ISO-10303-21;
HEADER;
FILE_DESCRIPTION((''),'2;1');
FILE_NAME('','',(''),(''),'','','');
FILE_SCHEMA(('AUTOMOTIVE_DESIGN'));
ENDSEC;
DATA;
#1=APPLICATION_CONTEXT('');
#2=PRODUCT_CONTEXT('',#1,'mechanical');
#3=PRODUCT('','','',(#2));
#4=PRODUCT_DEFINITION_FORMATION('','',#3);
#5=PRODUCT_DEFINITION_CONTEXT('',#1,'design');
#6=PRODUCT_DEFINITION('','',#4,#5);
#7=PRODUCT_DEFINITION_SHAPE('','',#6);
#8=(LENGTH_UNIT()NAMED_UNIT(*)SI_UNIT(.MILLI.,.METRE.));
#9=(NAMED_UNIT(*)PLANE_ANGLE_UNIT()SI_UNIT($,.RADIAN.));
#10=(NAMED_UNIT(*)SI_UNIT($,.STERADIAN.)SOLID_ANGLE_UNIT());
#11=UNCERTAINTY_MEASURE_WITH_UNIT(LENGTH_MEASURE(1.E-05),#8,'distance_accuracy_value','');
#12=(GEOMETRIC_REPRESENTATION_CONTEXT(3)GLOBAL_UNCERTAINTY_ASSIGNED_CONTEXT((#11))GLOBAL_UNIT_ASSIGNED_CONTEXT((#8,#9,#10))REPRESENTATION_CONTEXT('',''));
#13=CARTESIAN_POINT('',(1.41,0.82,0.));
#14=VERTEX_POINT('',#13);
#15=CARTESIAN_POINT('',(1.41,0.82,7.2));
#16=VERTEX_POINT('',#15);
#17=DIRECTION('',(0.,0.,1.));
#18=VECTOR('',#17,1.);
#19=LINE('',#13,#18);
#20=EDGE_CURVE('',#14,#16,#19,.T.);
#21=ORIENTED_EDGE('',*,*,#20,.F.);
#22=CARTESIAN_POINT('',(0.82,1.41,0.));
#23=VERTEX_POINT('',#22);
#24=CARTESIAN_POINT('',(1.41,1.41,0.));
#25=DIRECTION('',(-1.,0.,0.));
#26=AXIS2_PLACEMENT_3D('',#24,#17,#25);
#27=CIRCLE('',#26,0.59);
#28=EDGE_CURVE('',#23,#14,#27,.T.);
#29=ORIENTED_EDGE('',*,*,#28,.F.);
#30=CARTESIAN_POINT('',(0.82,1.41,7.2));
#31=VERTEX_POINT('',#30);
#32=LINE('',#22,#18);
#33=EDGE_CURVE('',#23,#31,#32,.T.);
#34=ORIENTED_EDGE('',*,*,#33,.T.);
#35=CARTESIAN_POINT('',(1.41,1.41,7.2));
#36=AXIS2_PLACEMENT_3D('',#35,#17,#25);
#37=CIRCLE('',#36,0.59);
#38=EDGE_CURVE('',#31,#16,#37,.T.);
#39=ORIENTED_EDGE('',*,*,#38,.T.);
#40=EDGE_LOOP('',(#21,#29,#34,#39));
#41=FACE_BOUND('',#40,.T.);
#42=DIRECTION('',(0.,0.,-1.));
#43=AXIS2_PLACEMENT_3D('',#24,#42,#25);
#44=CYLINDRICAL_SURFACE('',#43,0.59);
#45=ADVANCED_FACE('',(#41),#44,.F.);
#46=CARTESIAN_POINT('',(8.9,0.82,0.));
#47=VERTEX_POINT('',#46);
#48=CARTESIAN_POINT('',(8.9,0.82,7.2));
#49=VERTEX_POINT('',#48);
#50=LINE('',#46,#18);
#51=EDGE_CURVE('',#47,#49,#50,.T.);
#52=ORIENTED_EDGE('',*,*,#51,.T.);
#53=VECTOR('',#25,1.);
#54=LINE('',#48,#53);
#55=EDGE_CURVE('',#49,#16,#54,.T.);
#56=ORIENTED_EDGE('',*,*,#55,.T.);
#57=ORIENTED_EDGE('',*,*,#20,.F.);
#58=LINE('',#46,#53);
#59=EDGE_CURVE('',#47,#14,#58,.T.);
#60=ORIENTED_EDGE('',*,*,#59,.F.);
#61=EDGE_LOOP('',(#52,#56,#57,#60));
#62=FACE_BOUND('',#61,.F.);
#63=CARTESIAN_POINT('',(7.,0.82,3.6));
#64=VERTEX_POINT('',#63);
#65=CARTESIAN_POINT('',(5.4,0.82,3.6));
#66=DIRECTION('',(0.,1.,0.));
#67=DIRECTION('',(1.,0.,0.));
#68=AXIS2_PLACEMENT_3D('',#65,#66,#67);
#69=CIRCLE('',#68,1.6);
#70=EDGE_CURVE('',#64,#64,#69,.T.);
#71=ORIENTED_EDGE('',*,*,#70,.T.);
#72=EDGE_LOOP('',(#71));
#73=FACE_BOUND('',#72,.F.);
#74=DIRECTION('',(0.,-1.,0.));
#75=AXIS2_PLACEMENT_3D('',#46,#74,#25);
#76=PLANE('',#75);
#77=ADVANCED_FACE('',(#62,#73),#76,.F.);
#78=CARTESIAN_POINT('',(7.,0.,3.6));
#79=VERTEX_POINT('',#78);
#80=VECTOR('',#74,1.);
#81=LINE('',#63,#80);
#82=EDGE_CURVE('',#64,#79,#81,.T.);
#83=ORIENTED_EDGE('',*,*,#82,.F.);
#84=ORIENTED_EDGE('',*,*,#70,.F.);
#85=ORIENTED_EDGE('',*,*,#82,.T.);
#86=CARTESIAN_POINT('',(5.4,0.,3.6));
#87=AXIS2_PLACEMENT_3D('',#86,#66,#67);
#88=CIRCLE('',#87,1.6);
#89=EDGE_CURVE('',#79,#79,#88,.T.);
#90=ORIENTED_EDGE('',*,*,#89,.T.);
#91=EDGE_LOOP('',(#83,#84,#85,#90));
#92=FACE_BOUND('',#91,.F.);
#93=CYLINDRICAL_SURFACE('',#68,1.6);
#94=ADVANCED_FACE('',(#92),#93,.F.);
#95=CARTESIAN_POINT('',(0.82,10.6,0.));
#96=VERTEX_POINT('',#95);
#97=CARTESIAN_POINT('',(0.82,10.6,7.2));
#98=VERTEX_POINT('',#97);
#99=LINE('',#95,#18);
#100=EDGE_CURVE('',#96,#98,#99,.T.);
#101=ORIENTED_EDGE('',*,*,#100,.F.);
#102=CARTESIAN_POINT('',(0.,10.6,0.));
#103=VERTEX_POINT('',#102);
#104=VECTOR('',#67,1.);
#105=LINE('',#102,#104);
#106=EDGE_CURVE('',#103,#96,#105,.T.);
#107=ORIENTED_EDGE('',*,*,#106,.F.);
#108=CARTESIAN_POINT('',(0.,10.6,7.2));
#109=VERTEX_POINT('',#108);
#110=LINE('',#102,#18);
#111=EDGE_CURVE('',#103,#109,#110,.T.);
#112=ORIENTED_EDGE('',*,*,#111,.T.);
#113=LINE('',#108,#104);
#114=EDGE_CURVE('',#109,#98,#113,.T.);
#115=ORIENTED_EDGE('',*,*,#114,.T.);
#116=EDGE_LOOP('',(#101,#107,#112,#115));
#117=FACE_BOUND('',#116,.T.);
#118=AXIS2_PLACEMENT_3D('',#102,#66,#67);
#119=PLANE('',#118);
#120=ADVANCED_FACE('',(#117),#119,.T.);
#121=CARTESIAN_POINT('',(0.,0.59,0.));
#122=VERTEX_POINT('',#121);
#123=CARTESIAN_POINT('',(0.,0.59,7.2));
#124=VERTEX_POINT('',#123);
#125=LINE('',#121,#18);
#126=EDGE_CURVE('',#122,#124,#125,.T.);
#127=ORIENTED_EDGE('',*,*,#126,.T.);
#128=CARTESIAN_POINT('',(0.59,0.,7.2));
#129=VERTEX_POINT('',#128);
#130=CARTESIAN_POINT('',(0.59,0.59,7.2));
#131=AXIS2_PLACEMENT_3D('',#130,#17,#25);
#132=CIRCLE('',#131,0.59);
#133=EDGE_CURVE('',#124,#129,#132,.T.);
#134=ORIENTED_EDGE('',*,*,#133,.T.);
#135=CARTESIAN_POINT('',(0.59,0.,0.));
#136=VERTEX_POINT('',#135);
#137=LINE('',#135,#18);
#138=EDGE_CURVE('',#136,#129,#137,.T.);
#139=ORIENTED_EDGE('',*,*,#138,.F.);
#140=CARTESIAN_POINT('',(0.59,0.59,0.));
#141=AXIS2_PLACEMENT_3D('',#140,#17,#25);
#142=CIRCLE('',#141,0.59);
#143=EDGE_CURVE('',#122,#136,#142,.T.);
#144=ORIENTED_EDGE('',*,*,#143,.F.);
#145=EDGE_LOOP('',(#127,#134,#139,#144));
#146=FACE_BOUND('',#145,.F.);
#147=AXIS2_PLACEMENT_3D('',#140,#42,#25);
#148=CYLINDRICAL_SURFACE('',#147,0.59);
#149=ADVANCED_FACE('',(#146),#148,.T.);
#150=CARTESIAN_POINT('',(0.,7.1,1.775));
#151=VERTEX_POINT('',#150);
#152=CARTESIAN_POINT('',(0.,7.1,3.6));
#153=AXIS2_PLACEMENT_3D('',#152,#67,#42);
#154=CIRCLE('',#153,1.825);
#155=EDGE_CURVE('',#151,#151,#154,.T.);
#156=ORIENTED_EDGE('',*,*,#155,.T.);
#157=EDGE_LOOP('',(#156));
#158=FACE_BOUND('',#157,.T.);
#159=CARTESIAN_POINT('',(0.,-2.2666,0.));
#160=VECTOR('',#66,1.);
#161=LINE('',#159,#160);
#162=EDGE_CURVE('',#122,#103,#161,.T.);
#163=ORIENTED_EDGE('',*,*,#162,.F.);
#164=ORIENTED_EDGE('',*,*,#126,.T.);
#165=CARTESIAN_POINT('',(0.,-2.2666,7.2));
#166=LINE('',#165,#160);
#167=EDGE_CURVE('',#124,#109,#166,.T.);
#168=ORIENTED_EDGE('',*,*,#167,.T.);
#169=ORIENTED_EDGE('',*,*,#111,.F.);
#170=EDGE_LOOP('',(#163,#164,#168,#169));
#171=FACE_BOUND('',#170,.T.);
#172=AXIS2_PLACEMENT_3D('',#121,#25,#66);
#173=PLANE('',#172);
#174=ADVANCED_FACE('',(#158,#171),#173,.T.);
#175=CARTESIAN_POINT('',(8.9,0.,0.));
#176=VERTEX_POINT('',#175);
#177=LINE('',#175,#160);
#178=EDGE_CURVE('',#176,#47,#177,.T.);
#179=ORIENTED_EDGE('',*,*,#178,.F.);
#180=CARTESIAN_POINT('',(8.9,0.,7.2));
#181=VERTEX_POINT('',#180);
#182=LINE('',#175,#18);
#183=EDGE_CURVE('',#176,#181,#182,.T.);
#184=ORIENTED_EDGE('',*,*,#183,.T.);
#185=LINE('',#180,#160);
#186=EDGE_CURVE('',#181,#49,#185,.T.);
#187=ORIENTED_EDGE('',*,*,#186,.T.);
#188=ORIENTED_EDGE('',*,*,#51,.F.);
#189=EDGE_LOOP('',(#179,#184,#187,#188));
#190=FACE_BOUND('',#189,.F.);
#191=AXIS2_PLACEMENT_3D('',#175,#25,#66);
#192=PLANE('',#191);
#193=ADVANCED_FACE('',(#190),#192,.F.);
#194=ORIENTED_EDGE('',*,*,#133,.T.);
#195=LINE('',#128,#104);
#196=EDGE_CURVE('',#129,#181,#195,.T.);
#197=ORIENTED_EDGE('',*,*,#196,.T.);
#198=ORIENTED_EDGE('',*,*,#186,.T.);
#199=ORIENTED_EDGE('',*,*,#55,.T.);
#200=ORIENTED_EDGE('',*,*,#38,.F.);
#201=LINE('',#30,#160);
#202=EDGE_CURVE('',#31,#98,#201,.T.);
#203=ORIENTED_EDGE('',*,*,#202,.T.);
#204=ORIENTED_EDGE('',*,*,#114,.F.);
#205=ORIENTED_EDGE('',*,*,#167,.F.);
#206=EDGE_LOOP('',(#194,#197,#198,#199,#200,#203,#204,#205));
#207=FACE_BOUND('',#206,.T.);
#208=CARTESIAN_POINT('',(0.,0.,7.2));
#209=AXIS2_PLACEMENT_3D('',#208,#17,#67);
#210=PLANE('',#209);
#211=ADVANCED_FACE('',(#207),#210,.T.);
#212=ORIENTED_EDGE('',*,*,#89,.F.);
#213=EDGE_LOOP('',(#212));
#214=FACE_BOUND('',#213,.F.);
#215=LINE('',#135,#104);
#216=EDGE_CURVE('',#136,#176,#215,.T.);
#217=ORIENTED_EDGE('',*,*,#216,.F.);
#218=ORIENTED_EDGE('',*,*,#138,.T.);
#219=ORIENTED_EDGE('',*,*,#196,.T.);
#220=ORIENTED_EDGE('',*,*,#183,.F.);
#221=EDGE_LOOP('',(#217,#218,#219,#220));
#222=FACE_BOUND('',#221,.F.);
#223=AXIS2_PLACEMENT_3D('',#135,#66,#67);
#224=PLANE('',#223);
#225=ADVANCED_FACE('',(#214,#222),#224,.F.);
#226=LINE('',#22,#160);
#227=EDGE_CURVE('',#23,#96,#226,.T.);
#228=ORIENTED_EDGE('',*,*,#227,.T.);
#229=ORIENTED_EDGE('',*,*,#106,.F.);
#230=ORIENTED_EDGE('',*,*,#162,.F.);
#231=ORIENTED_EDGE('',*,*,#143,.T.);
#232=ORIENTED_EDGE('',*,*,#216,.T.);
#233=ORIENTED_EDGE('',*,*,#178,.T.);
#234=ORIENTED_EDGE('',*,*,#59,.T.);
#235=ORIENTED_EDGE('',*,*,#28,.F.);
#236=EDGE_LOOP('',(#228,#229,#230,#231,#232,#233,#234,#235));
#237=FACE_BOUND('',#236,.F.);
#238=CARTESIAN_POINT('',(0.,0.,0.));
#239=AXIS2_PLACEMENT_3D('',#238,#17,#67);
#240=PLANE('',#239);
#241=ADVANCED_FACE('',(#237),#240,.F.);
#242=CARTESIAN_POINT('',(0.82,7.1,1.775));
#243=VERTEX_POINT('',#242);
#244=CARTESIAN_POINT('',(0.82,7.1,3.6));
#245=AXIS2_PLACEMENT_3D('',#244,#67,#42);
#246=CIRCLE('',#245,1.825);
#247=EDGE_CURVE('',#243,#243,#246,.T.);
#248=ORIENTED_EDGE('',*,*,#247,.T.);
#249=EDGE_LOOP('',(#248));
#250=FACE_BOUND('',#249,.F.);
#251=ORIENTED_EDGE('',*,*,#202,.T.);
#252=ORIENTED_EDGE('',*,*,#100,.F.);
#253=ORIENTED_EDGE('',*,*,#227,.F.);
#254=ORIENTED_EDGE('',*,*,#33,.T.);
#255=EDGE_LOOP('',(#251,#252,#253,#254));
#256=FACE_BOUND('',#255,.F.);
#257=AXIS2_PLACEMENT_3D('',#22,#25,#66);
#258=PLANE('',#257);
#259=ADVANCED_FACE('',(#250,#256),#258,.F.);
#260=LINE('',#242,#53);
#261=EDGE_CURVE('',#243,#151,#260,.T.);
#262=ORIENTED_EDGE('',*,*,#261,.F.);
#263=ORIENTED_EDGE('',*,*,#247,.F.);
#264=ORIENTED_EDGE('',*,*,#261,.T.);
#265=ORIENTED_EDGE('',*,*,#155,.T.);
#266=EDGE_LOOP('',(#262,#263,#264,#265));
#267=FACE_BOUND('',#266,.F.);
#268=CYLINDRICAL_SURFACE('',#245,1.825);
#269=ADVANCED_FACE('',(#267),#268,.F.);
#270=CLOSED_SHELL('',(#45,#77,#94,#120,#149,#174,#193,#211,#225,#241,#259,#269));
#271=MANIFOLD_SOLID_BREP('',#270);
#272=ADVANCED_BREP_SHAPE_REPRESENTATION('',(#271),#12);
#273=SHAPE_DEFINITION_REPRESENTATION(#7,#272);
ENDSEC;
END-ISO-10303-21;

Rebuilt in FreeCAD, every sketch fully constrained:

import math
import FreeCAD as App
import Part
import Sketcher
from FreeCAD import Vector
Q = App.Units.Quantity

doc = App.newDocument("Part")
body = doc.addObject("PartDesign::Body", "Body")

sketch1 = body.newObject("Sketcher::SketchObject", "Sketch")
sketch1.AttachmentSupport = (doc.getObject("XY_Plane"), [""])
sketch1.MapMode = "FlatFace"
sketch1.addGeometry([
    Part.LineSegment(Vector(0, 10.6, 0), Vector(0, 0.6, 0)),
    Part.ArcOfCircle(Part.Circle(Vector(0.6, 0.6, 0), Vector(0, 0, 1), 0.6), math.radians(180), math.radians(270)),
    Part.LineSegment(Vector(0.6, 0, 0), Vector(8.9, 0, 0)),
    Part.LineSegment(Vector(8.9, 0, 0), Vector(8.9, 0.8, 0)),
    Part.LineSegment(Vector(8.9, 0.8, 0), Vector(1.4, 0.8, 0)),
    Part.ArcOfCircle(Part.Circle(Vector(1.4, 1.4, 0), Vector(0, 0, 1), 0.6), math.radians(180), math.radians(270)),
    Part.LineSegment(Vector(0.8, 1.4, 0), Vector(0.8, 10.6, 0)),
    Part.LineSegment(Vector(0.8, 10.6, 0), Vector(0, 10.6, 0)),
], False)
sketch1.addConstraint([
    Sketcher.Constraint("Tangent", 0, 2, 1, 1),
    Sketcher.Constraint("Tangent", 1, 2, 2, 1),
    Sketcher.Constraint("Coincident", 2, 2, 3, 1),
    Sketcher.Constraint("Coincident", 3, 2, 4, 1),
    Sketcher.Constraint("Tangent", 4, 2, 5, 2),
    Sketcher.Constraint("Tangent", 5, 1, 6, 1),
    Sketcher.Constraint("Coincident", 6, 2, 7, 1),
    Sketcher.Constraint("Coincident", 7, 2, 0, 1),
    Sketcher.Constraint("Vertical", 0),
    Sketcher.Constraint("Horizontal", 2),
    Sketcher.Constraint("Vertical", 3),
    Sketcher.Constraint("Horizontal", 4),
    Sketcher.Constraint("Vertical", 6),
    Sketcher.Constraint("Horizontal", 7),
    Sketcher.Constraint("Equal", 1, 5),
    Sketcher.Constraint("PointOnObject", 0, 2, -2),
    Sketcher.Constraint("PointOnObject", 1, 2, -1),
    Sketcher.Constraint("Equal", 7, 3),
    Sketcher.Constraint("Radius", 1, Q("0.59 mm")),
    Sketcher.Constraint("DistanceX", 7, 2, 7, 1, Q("0.82 mm")),
    Sketcher.Constraint("DistanceX", -1, 1, 2, 2, Q("8.9 mm")),
    Sketcher.Constraint("DistanceY", -1, 1, 6, 2, Q("10.6 mm")),
])
pad1 = body.newObject("PartDesign::Pad", "Pad")
pad1.Profile = sketch1
pad1.Length = 7.2

sketch2 = body.newObject("Sketcher::SketchObject", "Sketch001")
sketch2.AttachmentSupport = (doc.getObject("XZ_Plane"), [""])
sketch2.MapMode = "FlatFace"
sketch2.AttachmentOffset = App.Placement(Vector(0, 0, -0.82), App.Rotation())
sketch2.addGeometry(Part.Circle(Vector(5.4, 3.6, 0), Vector(0, 0, 1), 1.6), False)
sketch2.addConstraint([
    Sketcher.Constraint("Diameter", 0, Q("3.2 mm")),
    Sketcher.Constraint("DistanceY", -1, 1, 0, 3, Q("3.6 mm")),
    Sketcher.Constraint("DistanceX", -1, 1, 0, 3, Q("5.4 mm")),
])
pocket1 = body.newObject("PartDesign::Pocket", "Pocket")
pocket1.Profile = sketch2
pocket1.Type = "ThroughAll"
pocket1.Reversed = True

sketch3 = body.newObject("Sketcher::SketchObject", "Sketch002")
sketch3.AttachmentSupport = (doc.getObject("YZ_Plane"), [""])
sketch3.MapMode = "FlatFace"
sketch3.AttachmentOffset = App.Placement(Vector(0, 0, 0.82), App.Rotation())
sketch3.addGeometry(Part.Circle(Vector(7.1, 3.6, 0), Vector(0, 0, 1), 1.8), False)
sketch3.addConstraint([
    Sketcher.Constraint("Diameter", 0, Q("3.65 mm")),
    Sketcher.Constraint("DistanceY", -1, 1, 0, 3, Q("3.6 mm")),
    Sketcher.Constraint("DistanceX", -1, 1, 0, 3, Q("7.1 mm")),
])
pocket2 = body.newObject("PartDesign::Pocket", "Pocket001")
pocket2.Profile = sketch3
pocket2.Type = "ThroughAll"

doc.recompute()
